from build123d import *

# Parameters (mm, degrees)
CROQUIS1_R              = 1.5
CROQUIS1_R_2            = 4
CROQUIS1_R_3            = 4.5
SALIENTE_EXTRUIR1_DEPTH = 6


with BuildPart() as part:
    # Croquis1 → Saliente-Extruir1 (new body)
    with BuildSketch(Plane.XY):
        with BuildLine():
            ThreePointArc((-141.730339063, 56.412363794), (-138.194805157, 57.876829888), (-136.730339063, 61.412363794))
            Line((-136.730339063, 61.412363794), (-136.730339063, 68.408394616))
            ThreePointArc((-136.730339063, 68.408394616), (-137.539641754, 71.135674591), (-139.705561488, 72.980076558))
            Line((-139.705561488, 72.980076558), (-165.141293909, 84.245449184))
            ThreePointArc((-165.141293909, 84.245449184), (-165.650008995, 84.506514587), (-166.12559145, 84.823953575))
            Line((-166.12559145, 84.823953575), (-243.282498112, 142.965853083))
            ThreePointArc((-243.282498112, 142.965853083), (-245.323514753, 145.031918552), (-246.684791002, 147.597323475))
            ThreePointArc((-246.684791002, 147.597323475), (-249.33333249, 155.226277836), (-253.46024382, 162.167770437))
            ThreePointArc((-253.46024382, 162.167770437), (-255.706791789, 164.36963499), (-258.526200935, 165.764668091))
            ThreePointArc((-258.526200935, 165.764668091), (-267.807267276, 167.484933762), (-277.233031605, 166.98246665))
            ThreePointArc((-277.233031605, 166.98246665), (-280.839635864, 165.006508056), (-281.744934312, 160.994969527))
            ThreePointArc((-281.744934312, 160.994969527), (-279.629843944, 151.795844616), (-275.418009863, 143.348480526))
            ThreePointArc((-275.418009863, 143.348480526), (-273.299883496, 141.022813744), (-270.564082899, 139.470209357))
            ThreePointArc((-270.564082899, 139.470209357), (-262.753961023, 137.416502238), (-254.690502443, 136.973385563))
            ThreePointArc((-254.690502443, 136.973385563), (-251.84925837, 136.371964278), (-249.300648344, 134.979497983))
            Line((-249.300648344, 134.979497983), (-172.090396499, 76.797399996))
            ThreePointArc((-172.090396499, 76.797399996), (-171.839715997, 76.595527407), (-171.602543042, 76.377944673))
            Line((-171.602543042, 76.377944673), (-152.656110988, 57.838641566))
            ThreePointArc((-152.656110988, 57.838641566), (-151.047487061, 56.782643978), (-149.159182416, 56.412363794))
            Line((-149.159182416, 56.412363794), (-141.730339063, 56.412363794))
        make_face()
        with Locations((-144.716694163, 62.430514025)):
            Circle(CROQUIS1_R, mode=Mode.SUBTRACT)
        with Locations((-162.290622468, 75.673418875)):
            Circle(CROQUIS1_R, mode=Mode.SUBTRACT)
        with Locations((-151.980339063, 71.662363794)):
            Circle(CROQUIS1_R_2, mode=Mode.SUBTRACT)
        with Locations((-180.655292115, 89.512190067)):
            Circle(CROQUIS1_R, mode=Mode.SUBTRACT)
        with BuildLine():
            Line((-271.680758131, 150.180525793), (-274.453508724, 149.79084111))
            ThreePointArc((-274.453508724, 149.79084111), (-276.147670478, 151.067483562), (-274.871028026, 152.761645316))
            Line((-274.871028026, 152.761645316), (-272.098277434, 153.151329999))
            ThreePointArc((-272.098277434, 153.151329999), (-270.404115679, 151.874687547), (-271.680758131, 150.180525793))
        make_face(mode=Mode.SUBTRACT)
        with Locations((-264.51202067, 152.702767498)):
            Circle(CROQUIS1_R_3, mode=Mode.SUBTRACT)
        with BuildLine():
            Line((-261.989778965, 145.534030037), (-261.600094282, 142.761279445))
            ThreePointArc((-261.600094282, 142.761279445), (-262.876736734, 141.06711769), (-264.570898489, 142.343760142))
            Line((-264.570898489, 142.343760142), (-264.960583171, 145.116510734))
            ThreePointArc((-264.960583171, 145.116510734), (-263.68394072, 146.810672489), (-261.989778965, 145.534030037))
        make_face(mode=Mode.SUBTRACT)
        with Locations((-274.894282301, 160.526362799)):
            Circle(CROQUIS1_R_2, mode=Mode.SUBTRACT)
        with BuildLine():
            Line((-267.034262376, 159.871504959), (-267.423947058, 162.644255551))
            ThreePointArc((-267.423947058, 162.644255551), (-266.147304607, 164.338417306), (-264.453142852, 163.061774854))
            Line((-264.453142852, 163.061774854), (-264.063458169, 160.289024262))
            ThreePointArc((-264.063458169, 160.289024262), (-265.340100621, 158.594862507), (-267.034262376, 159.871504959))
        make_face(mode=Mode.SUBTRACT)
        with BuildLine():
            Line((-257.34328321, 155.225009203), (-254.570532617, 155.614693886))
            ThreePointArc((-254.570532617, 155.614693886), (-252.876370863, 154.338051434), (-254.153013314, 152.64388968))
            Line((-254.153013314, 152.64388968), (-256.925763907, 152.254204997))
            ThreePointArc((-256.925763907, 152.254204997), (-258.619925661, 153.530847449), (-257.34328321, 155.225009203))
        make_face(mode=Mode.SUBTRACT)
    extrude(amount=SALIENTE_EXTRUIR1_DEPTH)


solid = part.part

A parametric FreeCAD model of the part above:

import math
import FreeCAD as App
import Part
import Sketcher

V = App.Vector
Q = App.Units.Quantity

doc = App.newDocument("Part")
body = doc.addObject("PartDesign::Body", "Body")

# Sketch on XY plane
sketch1 = body.newObject("Sketcher::SketchObject", "Sketch")
sketch1.AttachmentSupport = (doc.getObject("XY_Plane"), [""])
sketch1.MapMode = "FlatFace"
sketch1.addGeometry(Part.ArcOfCircle(Part.Circle(V(-141.7, 61.4, 0), V(0, 0, 1), 5), math.radians(-90), math.radians(0)), False)
sketch1.addGeometry(Part.LineSegment(V(-136.7, 61.4, 0), V(-136.7, 68.4, 0)), False)
sketch1.addGeometry(Part.ArcOfCircle(Part.Circle(V(-141.7, 68.4, 0), V(0, 0, 1), 5), math.radians(0), math.radians(66)), False)
sketch1.addGeometry(Part.LineSegment(V(-139.7, 73, 0), V(-165.1, 84.2, 0)), False)
sketch1.addGeometry(Part.ArcOfCircle(Part.Circle(V(-163.1, 88.8, 0), V(0, 0, 1), 5), math.radians(-127), math.radians(-113.89)), False)
sketch1.addGeometry(Part.LineSegment(V(-166.1, 84.8, 0), V(-243.3, 143, 0)), False)
sketch1.addGeometry(Part.ArcOfCircle(Part.Circle(V(-237.3, 151, 0), V(0, 0, 1), 10), math.radians(-160), math.radians(-127)), False)
sketch1.addGeometry(Part.ArcOfCircle(Part.Circle(V(-285.6, 138.4, 0), V(0, 0, 1), 40), math.radians(13), math.radians(37)), False)
sketch1.addGeometry(Part.ArcOfCircle(Part.Circle(V(-261.5, 156.2, 0), V(0, 0, 1), 10), math.radians(37), math.radians(73)), False)
sketch1.addGeometry(Part.ArcOfCircle(Part.Circle(V(-270.4, 127.6, 0), V(0, 0, 1), 40), math.radians(73), math.radians(100)), False)
sketch1.addGeometry(Part.ArcOfCircle(Part.Circle(V(-276.8, 162, 0), V(0, 0, 1), 5), math.radians(94), math.radians(192)), False)
sketch1.addGeometry(Part.ArcOfCircle(Part.Circle(V(-242, 165.3, 0), V(0, 0, 1), 40), math.radians(-174), math.radians(-147)), False)
sketch1.addGeometry(Part.ArcOfCircle(Part.Circle(V(-267.1, 148.8, 0), V(0, 0, 1), 10), math.radians(-147), math.radians(-111)), False)
sketch1.addGeometry(Part.ArcOfCircle(Part.Circle(V(-256.5, 176.9, 0), V(0, 0, 1), 40), math.radians(-111), math.radians(-87)), False)
sketch1.addGeometry(Part.ArcOfCircle(Part.Circle(V(-255.3, 127, 0), V(0, 0, 1), 10), math.radians(53), math.radians(86)), False)
sketch1.addGeometry(Part.LineSegment(V(-249.3, 135, 0), V(-172.1, 76.8, 0)), False)
sketch1.addGeometry(Part.ArcOfCircle(Part.Circle(V(-175.1, 72.8, 0), V(0, 0, 1), 5), math.radians(45.62), math.radians(53)), False)
sketch1.addGeometry(Part.LineSegment(V(-171.6, 76.4, 0), V(-152.7, 57.8, 0)), False)
sketch1.addGeometry(Part.ArcOfCircle(Part.Circle(V(-149.2, 61.4, 0), V(0, 0, 1), 5), math.radians(-134), math.radians(-90)), False)
sketch1.addGeometry(Part.LineSegment(V(-149.2, 56.4, 0), V(-141.7, 56.4, 0)), False)
sketch1.addGeometry(Part.Circle(V(-144.7, 62.4, 0), V(0, 0, 1), 1.5), False)
sketch1.addGeometry(Part.Circle(V(-152, 71.7, 0), V(0, 0, 1), 4), False)
sketch1.addGeometry(Part.Circle(V(-162.3, 75.7, 0), V(0, 0, 1), 1.5), False)
sketch1.addGeometry(Part.Circle(V(-180.7, 89.5, 0), V(0, 0, 1), 1.5), False)
sketch1.addGeometry(Part.ArcOfCircle(Part.Circle(V(-263.5, 145.3, 0), V(0, 0, 1), 1.5), math.radians(8), math.radians(188)), False)
sketch1.addGeometry(Part.LineSegment(V(-262, 145.5, 0), V(-261.6, 142.8, 0)), False)
sketch1.addGeometry(Part.ArcOfCircle(Part.Circle(V(-263.1, 142.6, 0), V(0, 0, 1), 1.5), math.radians(-172), math.radians(8)), False)
sketch1.addGeometry(Part.LineSegment(V(-264.6, 142.3, 0), V(-265, 145.1, 0)), False)
sketch1.addGeometry(Part.ArcOfCircle(Part.Circle(V(-271.9, 151.7, 0), V(0, 0, 1), 1.5), math.radians(-82), math.radians(98)), False)
sketch1.addGeometry(Part.LineSegment(V(-271.7, 150.2, 0), V(-274.5, 149.8, 0)), False)
sketch1.addGeometry(Part.ArcOfCircle(Part.Circle(V(-274.7, 151.3, 0), V(0, 0, 1), 1.5), math.radians(98), math.radians(278)), False)
sketch1.addGeometry(Part.LineSegment(V(-274.9, 152.8, 0), V(-272.1, 153.2, 0)), False)
sketch1.addGeometry(Part.Circle(V(-264.5, 152.7, 0), V(0, 0, 1), 4.5), False)
sketch1.addGeometry(Part.Circle(V(-274.9, 160.5, 0), V(0, 0, 1), 4), False)
sketch1.addGeometry(Part.ArcOfCircle(Part.Circle(V(-265.5, 160.1, 0), V(0, 0, 1), 1.5), math.radians(-172), math.radians(8)), False)
sketch1.addGeometry(Part.LineSegment(V(-267, 159.9, 0), V(-267.4, 162.6, 0)), False)
sketch1.addGeometry(Part.ArcOfCircle(Part.Circle(V(-265.9, 162.9, 0), V(0, 0, 1), 1.5), math.radians(8), math.radians(188)), False)
sketch1.addGeometry(Part.LineSegment(V(-264.5, 163.1, 0), V(-264.1, 160.3, 0)), False)
sketch1.addGeometry(Part.ArcOfCircle(Part.Circle(V(-257.1, 153.7, 0), V(0, 0, 1), 1.5), math.radians(98), math.radians(278)), False)
sketch1.addGeometry(Part.LineSegment(V(-257.3, 155.2, 0), V(-254.6, 155.6, 0)), False)
sketch1.addGeometry(Part.ArcOfCircle(Part.Circle(V(-254.4, 154.1, 0), V(0, 0, 1), 1.5), math.radians(-82), math.radians(98)), False)
sketch1.addGeometry(Part.LineSegment(V(-254.2, 152.6, 0), V(-256.9, 152.3, 0)), False)
sketch1.addConstraint(Sketcher.Constraint("Tangent", 0, 2, 1, 1))
sketch1.addConstraint(Sketcher.Constraint("Tangent", 1, 2, 2, 1))
sketch1.addConstraint(Sketcher.Constraint("Tangent", 2, 2, 3, 1))
sketch1.addConstraint(Sketcher.Constraint("Tangent", 3, 2, 4, 2))
sketch1.addConstraint(Sketcher.Constraint("Tangent", 4, 1, 5, 1))
sketch1.addConstraint(Sketcher.Constraint("Tangent", 5, 2, 6, 2))
sketch1.addConstraint(Sketcher.Constraint("Coincident", 6, 1, 7, 1))
sketch1.addConstraint(Sketcher.Constraint("Tangent", 7, 2, 8, 1))
sketch1.addConstraint(Sketcher.Constraint("Tangent", 8, 2, 9, 1))
sketch1.addConstraint(Sketcher.Constraint("Coincident", 9, 2, 10, 1))
sketch1.addConstraint(Sketcher.Constraint("Coincident", 10, 2, 11, 1))
sketch1.addConstraint(Sketcher.Constraint("Tangent", 11, 2, 12, 1))
sketch1.addConstraint(Sketcher.Constraint("Tangent", 12, 2, 13, 1))
sketch1.addConstraint(Sketcher.Constraint("Coincident", 13, 2, 14, 2))
sketch1.addConstraint(Sketcher.Constraint("Tangent", 14, 1, 15, 1))
sketch1.addConstraint(Sketcher.Constraint("Tangent", 15, 2, 16, 2))
sketch1.addConstraint(Sketcher.Constraint("Tangent", 16, 1, 17, 1))
sketch1.addConstraint(Sketcher.Constraint("Tangent", 17, 2, 18, 1))
sketch1.addConstraint(Sketcher.Constraint("Tangent", 18, 2, 19, 1))
sketch1.addConstraint(Sketcher.Constraint("Tangent", 19, 2, 0, 1))
sketch1.addConstraint(Sketcher.Constraint("Tangent", 24, 1, 25, 1))
sketch1.addConstraint(Sketcher.Constraint("Tangent", 25, 2, 26, 2))
sketch1.addConstraint(Sketcher.Constraint("Tangent", 26, 1, 27, 1))
sketch1.addConstraint(Sketcher.Constraint("Tangent", 27, 2, 24, 2))
sketch1.addConstraint(Sketcher.Constraint("Tangent", 28, 1, 29, 1))
sketch1.addConstraint(Sketcher.Constraint("Tangent", 29, 2, 30, 2))
sketch1.addConstraint(Sketcher.Constraint("Tangent", 30, 1, 31, 1))
sketch1.addConstraint(Sketcher.Constraint("Tangent", 31, 2, 28, 2))
sketch1.addConstraint(Sketcher.Constraint("Tangent", 34, 1, 35, 1))
sketch1.addConstraint(Sketcher.Constraint("Tangent", 35, 2, 36, 2))
sketch1.addConstraint(Sketcher.Constraint("Tangent", 36, 1, 37, 1))
sketch1.addConstraint(Sketcher.Constraint("Tangent", 37, 2, 34, 2))
sketch1.addConstraint(Sketcher.Constraint("Tangent", 38, 1, 39, 1))
sketch1.addConstraint(Sketcher.Constraint("Tangent", 39, 2, 40, 2))
sketch1.addConstraint(Sketcher.Constraint("Tangent", 40, 1, 41, 1))
sketch1.addConstraint(Sketcher.Constraint("Tangent", 41, 2, 38, 2))
sketch1.addConstraint(Sketcher.Constraint("Vertical", 1))
sketch1.addConstraint(Sketcher.Constraint("Horizontal", 19))
sketch1.addConstraint(Sketcher.Constraint("Equal", 0, 2))
sketch1.addConstraint(Sketcher.Constraint("Equal", 2, 4))
sketch1.addConstraint(Sketcher.Constraint("Equal", 6, 8))
sketch1.addConstraint(Sketcher.Constraint("Equal", 7, 9))
sketch1.addConstraint(Sketcher.Constraint("Equal", 4, 10))
sketch1.addConstraint(Sketcher.Constraint("Equal", 9, 11))
sketch1.addConstraint(Sketcher.Constraint("Equal", 8, 12))
sketch1.addConstraint(Sketcher.Constraint("Equal", 11, 13))
sketch1.addConstraint(Sketcher.Constraint("Equal", 12, 14))
sketch1.addConstraint(Sketcher.Constraint("Equal", 10, 16))
sketch1.addConstraint(Sketcher.Constraint("Equal", 16, 18))
sketch1.addConstraint(Sketcher.Constraint("Equal", 20, 22))
sketch1.addConstraint(Sketcher.Constraint("Equal", 22, 23))
sketch1.addConstraint(Sketcher.Constraint("Equal", 23, 24))
sketch1.addConstraint(Sketcher.Constraint("Equal", 24, 26))
sketch1.addConstraint(Sketcher.Constraint("Equal", 26, 28))
sketch1.addConstraint(Sketcher.Constraint("Equal", 28, 30))
sketch1.addConstraint(Sketcher.Constraint("Equal", 21, 33))
sketch1.addConstraint(Sketcher.Constraint("Equal", 30, 34))
sketch1.addConstraint(Sketcher.Constraint("Equal", 34, 36))
sketch1.addConstraint(Sketcher.Constraint("Equal", 36, 38))
sketch1.addConstraint(Sketcher.Constraint("Equal", 38, 40))
sketch1.addConstraint(Sketcher.Constraint("Parallel", 5, 15))
sketch1.addConstraint(Sketcher.Constraint("Perpendicular", 27, 29))
sketch1.addConstraint(Sketcher.Constraint("Perpendicular", 31, 35))
sketch1.addConstraint(Sketcher.Constraint("Perpendicular", 37, 39))
sketch1.addConstraint(Sketcher.Constraint("Equal", 27, 29))
sketch1.addConstraint(Sketcher.Constraint("Equal", 31, 35))
sketch1.addConstraint(Sketcher.Constraint("Equal", 37, 39))
sketch1.addConstraint(Sketcher.Constraint("Diameter", 20, 3.0))
sketch1.addConstraint(Sketcher.Constraint("Diameter", 21, 8.0))
sketch1.addConstraint(Sketcher.Constraint("Diameter", 32, 9.0))
sketch1.addConstraint(Sketcher.Constraint("Radius", 0, 5.0))
sketch1.addConstraint(Sketcher.Constraint("Radius", 6, 10.0))
sketch1.addConstraint(Sketcher.Constraint("Radius", 7, 40.0))
sketch1.addConstraint(Sketcher.Constraint("Angle", 5, Q("143 deg")))
sketch1.addConstraint(Sketcher.Constraint("Angle", 25, Q("-82 deg")))
sketch1.addConstraint(Sketcher.Constraint("Distance", 25, 2.8))
sketch1.addConstraint(Sketcher.Constraint("DistanceY", 1, 1, 1, 2, 6.996031))
sketch1.addConstraint(Sketcher.Constraint("DistanceX", 14, 3, -1, 1, 255.318799))
sketch1.addConstraint(Sketcher.Constraint("DistanceX", 5, 2, -1, 1, 243.282498))
sketch1.addConstraint(Sketcher.Constraint("DistanceX", 8, 2, -1, 1, 258.526201))
sketch1.addConstraint(Sketcher.Constraint("DistanceY", -1, 1, 15, 2, 76.7974))
sketch1.addConstraint(Sketcher.Constraint("DistanceX", 26, 1, -1, 1, 264.570898))
sketch1.addConstraint(Sketcher.Constraint("Distance", 3, 27.81879))
sketch1.addConstraint(Sketcher.Constraint("Distance", 15, 96.67771))
sketch1.addConstraint(Sketcher.Constraint("Distance", 17, 26.507981))
sketch1.addConstraint(Sketcher.Constraint("DistanceX", 19, 1, 19, 2, 7.428843))
sketch1.addConstraint(Sketcher.Constraint("DistanceX", 0, 3, -1, 1, 141.730339))
sketch1.addConstraint(Sketcher.Constraint("DistanceY", -1, 1, 4, 3, 88.817131))
sketch1.addConstraint(Sketcher.Constraint("DistanceX", 10, 3, -1, 1, 276.846458))
sketch1.addConstraint(Sketcher.Constraint("DistanceY", -1, 1, 13, 3, 176.930669))
sketch1.addConstraint(Sketcher.Constraint("DistanceX", 21, 3, -1, 1, 151.980339))
sketch1.addConstraint(Sketcher.Constraint("DistanceY", -1, 1, 22, 3, 75.673419))
sketch1.addConstraint(Sketcher.Constraint("DistanceY", -1, 1, 23, 3, 89.51219))
sketch1.addConstraint(Sketcher.Constraint("DistanceY", -1, 1, 24, 3, 145.32527))
sketch1.addConstraint(Sketcher.Constraint("DistanceX", 30, 3, -1, 1, 274.662268))
sketch1.addConstraint(Sketcher.Constraint("DistanceX", 32, 3, -1, 1, 264.512021))
sketch1.addConstraint(Sketcher.Constraint("DistanceX", 34, 3, -1, 1, 265.54886))
sketch1.addConstraint(Sketcher.Constraint("DistanceY", -1, 1, 40, 3, 154.129292))
sketch1.addConstraint(Sketcher.Constraint("DistanceX", 6, 1, -1, 1, 246.684791))
sketch1.addConstraint(Sketcher.Constraint("DistanceY", -1, 1, 7, 2, 162.16777))
sketch1.addConstraint(Sketcher.Constraint("DistanceY", -1, 1, 8, 2, 165.764668))
sketch1.addConstraint(Sketcher.Constraint("DistanceX", 9, 2, -1, 1, 277.233032))
sketch1.addConstraint(Sketcher.Constraint("DistanceY", -1, 1, 10, 2, 160.99497))
sketch1.addConstraint(Sketcher.Constraint("DistanceX", 11, 2, -1, 1, 275.41801))
sketch1.addConstraint(Sketcher.Constraint("DistanceY", -1, 1, 11, 2, 143.348481))
sketch1.addConstraint(Sketcher.Constraint("DistanceY", -1, 1, 29, 2, 149.790841))
sketch1.addConstraint(Sketcher.Constraint("DistanceX", 20, 3, -1, 1, 144.716694))
sketch1.addConstraint(Sketcher.Constraint("DistanceY", -1, 1, 20, 3, 62.430514))
sketch1.addConstraint(Sketcher.Constraint("DistanceY", -1, 1, 21, 3, 71.662364))
sketch1.addConstraint(Sketcher.Constraint("DistanceX", 22, 3, -1, 1, 162.290622))
sketch1.addConstraint(Sketcher.Constraint("DistanceX", 23, 3, -1, 1, 180.655292))
sketch1.addConstraint(Sketcher.Constraint("DistanceY", -1, 1, 32, 3, 152.702767))
sketch1.addConstraint(Sketcher.Constraint("DistanceX", 33, 3, -1, 1, 274.894282))
sketch1.addConstraint(Sketcher.Constraint("DistanceY", -1, 1, 33, 3, 160.526363))
sketch1.addConstraint(Sketcher.Constraint("DistanceY", -1, 1, 34, 3, 160.080265))
sketch1.addConstraint(Sketcher.Constraint("DistanceX", 38, 3, -1, 1, 257.134524))
pad1 = body.newObject("PartDesign::Pad", "Pad")
pad1.Profile = sketch1
pad1.Length = 6

doc.recompute()
